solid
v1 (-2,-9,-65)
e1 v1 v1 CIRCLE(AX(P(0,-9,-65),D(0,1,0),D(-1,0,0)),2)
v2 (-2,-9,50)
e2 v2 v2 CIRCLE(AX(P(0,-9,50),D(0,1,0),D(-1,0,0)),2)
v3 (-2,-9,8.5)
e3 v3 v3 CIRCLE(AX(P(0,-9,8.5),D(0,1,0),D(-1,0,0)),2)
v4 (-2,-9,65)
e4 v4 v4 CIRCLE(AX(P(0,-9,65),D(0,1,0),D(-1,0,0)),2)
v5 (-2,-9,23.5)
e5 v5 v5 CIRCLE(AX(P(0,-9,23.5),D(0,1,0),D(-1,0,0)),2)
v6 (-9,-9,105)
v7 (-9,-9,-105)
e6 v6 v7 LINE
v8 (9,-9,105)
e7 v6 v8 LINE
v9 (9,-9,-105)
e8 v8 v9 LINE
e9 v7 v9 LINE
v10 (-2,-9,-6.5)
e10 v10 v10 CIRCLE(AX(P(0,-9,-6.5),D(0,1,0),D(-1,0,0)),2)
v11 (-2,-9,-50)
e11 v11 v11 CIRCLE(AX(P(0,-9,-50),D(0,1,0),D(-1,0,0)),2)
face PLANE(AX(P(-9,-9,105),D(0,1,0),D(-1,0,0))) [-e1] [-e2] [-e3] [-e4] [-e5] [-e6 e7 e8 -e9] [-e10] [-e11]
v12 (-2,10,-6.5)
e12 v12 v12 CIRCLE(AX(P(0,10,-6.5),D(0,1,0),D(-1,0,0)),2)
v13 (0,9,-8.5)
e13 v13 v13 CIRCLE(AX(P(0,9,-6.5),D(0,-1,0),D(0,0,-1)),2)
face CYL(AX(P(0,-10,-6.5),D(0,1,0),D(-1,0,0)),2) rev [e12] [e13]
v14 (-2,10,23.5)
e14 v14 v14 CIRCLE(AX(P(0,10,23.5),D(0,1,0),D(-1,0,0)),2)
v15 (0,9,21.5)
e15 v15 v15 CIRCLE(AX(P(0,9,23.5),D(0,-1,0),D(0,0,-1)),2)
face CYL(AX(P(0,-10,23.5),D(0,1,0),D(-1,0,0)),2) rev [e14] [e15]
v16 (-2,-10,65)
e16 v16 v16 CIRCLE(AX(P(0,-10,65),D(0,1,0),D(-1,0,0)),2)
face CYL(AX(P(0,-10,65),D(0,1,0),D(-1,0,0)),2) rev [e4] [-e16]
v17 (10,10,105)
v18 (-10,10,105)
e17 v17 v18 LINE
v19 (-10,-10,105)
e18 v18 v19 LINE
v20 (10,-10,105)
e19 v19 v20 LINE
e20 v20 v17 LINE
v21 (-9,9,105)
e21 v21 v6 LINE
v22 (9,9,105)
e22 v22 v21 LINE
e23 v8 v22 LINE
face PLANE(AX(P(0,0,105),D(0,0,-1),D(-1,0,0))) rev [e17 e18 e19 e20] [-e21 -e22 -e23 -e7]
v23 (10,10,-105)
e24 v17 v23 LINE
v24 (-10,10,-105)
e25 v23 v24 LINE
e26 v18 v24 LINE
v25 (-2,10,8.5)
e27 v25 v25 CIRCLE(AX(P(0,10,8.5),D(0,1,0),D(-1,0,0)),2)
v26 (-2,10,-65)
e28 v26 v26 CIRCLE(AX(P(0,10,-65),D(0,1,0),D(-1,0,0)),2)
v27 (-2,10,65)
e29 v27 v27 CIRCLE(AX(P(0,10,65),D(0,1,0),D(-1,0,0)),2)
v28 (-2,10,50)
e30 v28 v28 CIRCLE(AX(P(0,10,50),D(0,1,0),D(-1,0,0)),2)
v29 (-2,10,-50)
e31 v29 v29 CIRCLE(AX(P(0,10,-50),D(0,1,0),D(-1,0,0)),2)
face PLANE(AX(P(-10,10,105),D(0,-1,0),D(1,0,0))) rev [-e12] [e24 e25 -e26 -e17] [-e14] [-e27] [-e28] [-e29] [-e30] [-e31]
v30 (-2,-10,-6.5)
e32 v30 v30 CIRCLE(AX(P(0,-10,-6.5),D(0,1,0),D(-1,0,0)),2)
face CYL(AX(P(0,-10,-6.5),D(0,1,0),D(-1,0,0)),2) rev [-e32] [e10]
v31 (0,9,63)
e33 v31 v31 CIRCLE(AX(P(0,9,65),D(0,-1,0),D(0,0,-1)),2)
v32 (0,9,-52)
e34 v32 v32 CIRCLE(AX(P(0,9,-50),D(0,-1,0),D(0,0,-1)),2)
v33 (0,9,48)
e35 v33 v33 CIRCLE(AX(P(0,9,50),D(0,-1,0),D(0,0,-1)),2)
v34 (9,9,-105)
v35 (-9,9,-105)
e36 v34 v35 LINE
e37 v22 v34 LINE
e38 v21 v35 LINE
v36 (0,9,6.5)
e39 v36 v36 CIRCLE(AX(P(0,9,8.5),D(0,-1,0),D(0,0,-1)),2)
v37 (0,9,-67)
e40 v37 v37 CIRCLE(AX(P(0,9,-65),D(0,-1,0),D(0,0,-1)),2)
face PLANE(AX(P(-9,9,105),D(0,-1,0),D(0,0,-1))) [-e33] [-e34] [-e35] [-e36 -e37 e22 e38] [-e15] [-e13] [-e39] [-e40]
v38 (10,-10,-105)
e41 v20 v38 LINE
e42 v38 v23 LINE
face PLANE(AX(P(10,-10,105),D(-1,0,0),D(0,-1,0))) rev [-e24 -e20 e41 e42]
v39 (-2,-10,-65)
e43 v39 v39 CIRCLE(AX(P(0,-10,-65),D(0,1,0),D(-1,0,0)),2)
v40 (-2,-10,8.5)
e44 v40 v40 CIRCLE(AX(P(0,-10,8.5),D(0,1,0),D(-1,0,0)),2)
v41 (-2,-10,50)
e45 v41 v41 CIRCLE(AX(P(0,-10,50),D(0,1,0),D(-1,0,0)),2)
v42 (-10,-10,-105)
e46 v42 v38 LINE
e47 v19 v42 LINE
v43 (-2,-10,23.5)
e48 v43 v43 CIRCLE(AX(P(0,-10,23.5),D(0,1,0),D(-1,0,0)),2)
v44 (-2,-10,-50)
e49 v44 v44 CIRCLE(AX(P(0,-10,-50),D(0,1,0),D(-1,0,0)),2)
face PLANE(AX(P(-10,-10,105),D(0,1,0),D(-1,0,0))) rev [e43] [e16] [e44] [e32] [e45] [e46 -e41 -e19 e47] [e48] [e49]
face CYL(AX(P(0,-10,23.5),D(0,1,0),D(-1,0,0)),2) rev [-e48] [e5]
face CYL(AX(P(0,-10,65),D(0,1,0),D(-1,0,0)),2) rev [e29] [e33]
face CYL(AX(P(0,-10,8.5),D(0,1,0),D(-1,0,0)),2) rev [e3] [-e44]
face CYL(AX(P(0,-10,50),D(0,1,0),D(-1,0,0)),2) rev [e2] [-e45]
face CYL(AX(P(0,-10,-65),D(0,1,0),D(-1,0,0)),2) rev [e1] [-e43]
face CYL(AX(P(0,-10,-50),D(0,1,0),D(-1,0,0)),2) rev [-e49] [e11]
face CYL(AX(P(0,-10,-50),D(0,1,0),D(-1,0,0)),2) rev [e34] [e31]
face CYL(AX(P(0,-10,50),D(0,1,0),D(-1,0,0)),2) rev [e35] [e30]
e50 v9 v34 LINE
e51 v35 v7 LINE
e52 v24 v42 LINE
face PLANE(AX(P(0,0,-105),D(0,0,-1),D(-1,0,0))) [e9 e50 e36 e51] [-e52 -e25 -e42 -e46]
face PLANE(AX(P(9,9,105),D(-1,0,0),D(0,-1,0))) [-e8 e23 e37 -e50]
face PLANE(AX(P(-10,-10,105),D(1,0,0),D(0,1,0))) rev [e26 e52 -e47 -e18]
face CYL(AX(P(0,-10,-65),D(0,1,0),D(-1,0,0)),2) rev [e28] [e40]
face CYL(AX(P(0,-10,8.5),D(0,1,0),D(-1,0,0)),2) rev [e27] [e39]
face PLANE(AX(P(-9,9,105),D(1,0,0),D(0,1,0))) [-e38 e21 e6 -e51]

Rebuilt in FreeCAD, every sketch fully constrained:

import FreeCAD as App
import Part
import Sketcher
from FreeCAD import Vector
Q = App.Units.Quantity


def add_polygon(sketch, points):
    """Adds a closed chain of lines whose ends are joined by coincident constraints."""
    first, n = sketch.GeometryCount, len(points)
    for a, b in zip(points, points[1:] + points[:1]):
        sketch.addGeometry(Part.LineSegment(App.Vector(*a, 0), App.Vector(*b, 0)), False)
    for i in range(n):
        sketch.addConstraint(Sketcher.Constraint("Coincident", first + i, 2, first + (i + 1) % n, 1))

doc = App.newDocument("Part")
params = doc.addObject("Spreadsheet::Sheet", "Params")
for row, (alias, value) in enumerate([
    ("sketch1_width", "20 mm"),
    ("sketch1_width2", "18 mm"),
    ("pad1_length", "210 mm"),
    ("sketch2_diameter", "4 mm"),
    ("sketch3_diameter", "4 mm"),
], start=1):
    params.set(f"A{row}", alias)
    params.set(f"B{row}", "=" + value)
    params.setAlias(f"B{row}", alias)

body = doc.addObject("PartDesign::Body", "Body")

# Sketch on XY plane
sketch1 = body.newObject("Sketcher::SketchObject", "Sketch")
sketch1.AttachmentSupport = (doc.getObject("XY_Plane"), [""])
sketch1.MapMode = "FlatFace"
add_polygon(sketch1, [(-10, 10), (-10, -10), (10, -10), (10, 10)])  # lines 0-3
add_polygon(sketch1, [(9, -9), (-9, -9), (-9, 9), (9, 9)])  # lines 4-7
sketch1.addConstraint(Sketcher.Constraint("Vertical", 0))
sketch1.addConstraint(Sketcher.Constraint("Horizontal", 1))
sketch1.addConstraint(Sketcher.Constraint("Vertical", 2))
sketch1.addConstraint(Sketcher.Constraint("Horizontal", 3))
sketch1.addConstraint(Sketcher.Constraint("Horizontal", 4))
sketch1.addConstraint(Sketcher.Constraint("Vertical", 5))
sketch1.addConstraint(Sketcher.Constraint("Horizontal", 6))
sketch1.addConstraint(Sketcher.Constraint("Vertical", 7))
sketch1.addConstraint(Sketcher.Constraint("Symmetric", 0, 2, 2, 2, -1, 1))
sketch1.addConstraint(Sketcher.Constraint("Symmetric", 4, 2, 6, 2, -1, 1))
sketch1.addConstraint(Sketcher.Constraint("Equal", 3, 0))
sketch1.addConstraint(Sketcher.Constraint("Equal", 6, 5))
sketch1.addConstraint(Sketcher.Constraint("DistanceX", 1, 1, 1, 2, Q("20 mm")))
sketch1.addConstraint(Sketcher.Constraint("DistanceX", 4, 2, 4, 1, Q("18 mm")))
sketch1.setExpression("Constraints[20]", "Params.sketch1_width")
sketch1.setExpression("Constraints[21]", "Params.sketch1_width2")
pad1 = body.newObject("PartDesign::Pad", "Pad")
pad1.Profile = sketch1
pad1.setExpression("Length", "Params.pad1_length")
pad1.Midplane = True

# Sketch on XZ plane
sketch2 = body.newObject("Sketcher::SketchObject", "Sketch001")
sketch2.AttachmentSupport = (doc.getObject("XZ_Plane"), [""])
sketch2.MapMode = "FlatFace"
sketch2.AttachmentOffset = App.Placement(Vector(0, 0, -10), App.Rotation())
sketch2.addGeometry(Part.Circle(Vector(0, -65, 0), Vector(0, 0, 1), 2), False)
sketch2.addGeometry(Part.Circle(Vector(0, 65, 0), Vector(0, 0, 1), 2), False)
sketch2.addGeometry(Part.Circle(Vector(0, 50, 0), Vector(0, 0, 1), 2), False)
sketch2.addGeometry(Part.Circle(Vector(0, -50, 0), Vector(0, 0, 1), 2), False)
sketch2.addConstraint(Sketcher.Constraint("Equal", 0, 1))
sketch2.addConstraint(Sketcher.Constraint("Equal", 1, 2))
sketch2.addConstraint(Sketcher.Constraint("Equal", 2, 3))
sketch2.addConstraint(Sketcher.Constraint("Symmetric", 0, 3, 1, 3, -1, 1))
sketch2.addConstraint(Sketcher.Constraint("Symmetric", 2, 3, 3, 3, -1, 1))
sketch2.addConstraint(Sketcher.Constraint("PointOnObject", 0, 3, -2))
sketch2.addConstraint(Sketcher.Constraint("PointOnObject", 2, 3, -2))
sketch2.addConstraint(Sketcher.Constraint("Diameter", 0, Q("4 mm")))
sketch2.addConstraint(Sketcher.Constraint("DistanceY", 0, 3, -1, 1, Q("65 mm")))
sketch2.addConstraint(Sketcher.Constraint("DistanceY", -1, 1, 2, 3, Q("50 mm")))
sketch2.setExpression("Constraints[7]", "Params.sketch2_diameter")
pocket1 = body.newObject("PartDesign::Pocket", "Pocket")
pocket1.Profile = sketch2
pocket1.Type = "ThroughAll"
pocket1.Reversed = True

# Sketch on XZ plane
sketch3 = body.newObject("Sketcher::SketchObject", "Sketch002")
sketch3.AttachmentSupport = (doc.getObject("XZ_Plane"), [""])
sketch3.MapMode = "FlatFace"
sketch3.AttachmentOffset = App.Placement(Vector(0, 0, -10), App.Rotation())
sketch3.addGeometry(Part.Circle(Vector(0, 8.5, 0), Vector(0, 0, 1), 2), False)
sketch3.addGeometry(Part.Circle(Vector(0, -6.5, 0), Vector(0, 0, 1), 2), False)
sketch3.addGeometry(Part.Circle(Vector(0, 23.5, 0), Vector(0, 0, 1), 2), False)
sketch3.addConstraint(Sketcher.Constraint("Equal", 0, 1))
sketch3.addConstraint(Sketcher.Constraint("Equal", 1, 2))
sketch3.addConstraint(Sketcher.Constraint("PointOnObject", 0, 3, -2))
sketch3.addConstraint(Sketcher.Constraint("PointOnObject", 1, 3, -2))
sketch3.addConstraint(Sketcher.Constraint("PointOnObject", 2, 3, -2))
sketch3.addConstraint(Sketcher.Constraint("Diameter", 0, Q("4 mm")))
sketch3.addConstraint(Sketcher.Constraint("DistanceY", 1, 3, 0, 3, Q("15 mm")))
sketch3.addConstraint(Sketcher.Constraint("DistanceY", 0, 3, 2, 3, Q("15 mm")))
sketch3.addConstraint(Sketcher.Constraint("DistanceY", -1, 1, 0, 3, Q("8.5 mm")))
sketch3.setExpression("Constraints[5]", "Params.sketch3_diameter")
pocket2 = body.newObject("PartDesign::Pocket", "Pocket001")
pocket2.Profile = sketch3
pocket2.Type = "ThroughAll"
pocket2.Reversed = True

doc.recompute()
